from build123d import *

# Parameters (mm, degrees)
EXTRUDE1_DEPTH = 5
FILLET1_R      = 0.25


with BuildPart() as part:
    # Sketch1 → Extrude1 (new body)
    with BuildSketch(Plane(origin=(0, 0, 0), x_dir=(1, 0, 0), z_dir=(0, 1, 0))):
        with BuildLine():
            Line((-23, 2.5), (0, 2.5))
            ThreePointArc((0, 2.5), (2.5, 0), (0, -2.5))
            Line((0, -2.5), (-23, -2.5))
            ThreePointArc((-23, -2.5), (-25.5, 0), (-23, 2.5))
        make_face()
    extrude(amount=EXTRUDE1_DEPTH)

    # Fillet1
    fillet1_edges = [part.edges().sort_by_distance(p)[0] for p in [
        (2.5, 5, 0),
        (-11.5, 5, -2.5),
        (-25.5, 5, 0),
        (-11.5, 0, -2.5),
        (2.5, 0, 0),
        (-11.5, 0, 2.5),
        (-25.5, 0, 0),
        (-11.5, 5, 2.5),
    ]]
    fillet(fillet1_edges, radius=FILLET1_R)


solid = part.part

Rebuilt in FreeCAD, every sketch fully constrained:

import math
import FreeCAD as App
import Part
import Sketcher
from FreeCAD import Vector
Q = App.Units.Quantity


def edges_at(feature, points):
    """Names of the edges that pass closest to the given points."""
    edges = feature.Shape.Edges
    near = lambda p: min(range(len(edges)), key=lambda i: edges[i].distToShape(Part.Vertex(*p))[0])
    return sorted({f"Edge{near(p) + 1}" for p in points})

doc = App.newDocument("Part")
params = doc.addObject("Spreadsheet::Sheet", "Params")
for row, (alias, value) in enumerate([
    ("sketch1_radius", "2.5 mm"),
    ("sketch1_width", "23 mm"),
    ("pad1_length", "5 mm"),
    ("fillet_radius", "0.25 mm"),
], start=1):
    params.set(f"A{row}", alias)
    params.set(f"B{row}", "=" + value)
    params.setAlias(f"B{row}", alias)

body = doc.addObject("PartDesign::Body", "Body")

sketch1 = doc.addObject("Sketcher::SketchObject", "Sketch")
body.addObject(sketch1)
sketch1.AttachmentSupport = (doc.XZ_Plane, [""])
sketch1.MapMode = "FlatFace"
sketch1.addGeometry([
    Part.LineSegment(Vector(0, -2.5, 0), Vector(-23, -2.5, 0)),
    Part.ArcOfCircle(Part.Circle(Vector(-23, 0, 0), Vector(0, 0, 1), 2.5), math.radians(90), math.radians(270)),
    Part.LineSegment(Vector(-23, 2.5, 0), Vector(0, 2.5, 0)),
    Part.ArcOfCircle(Part.Circle(Vector(0, 0, 0), Vector(0, 0, 1), 2.5), math.radians(-90), math.radians(90)),
], False)
sketch1.addConstraint([
    Sketcher.Constraint("Tangent", 0, 2, 1, 2),
    Sketcher.Constraint("Tangent", 1, 1, 2, 1),
    Sketcher.Constraint("Tangent", 2, 2, 3, 2),
    Sketcher.Constraint("Tangent", 3, 1, 0, 1),
    Sketcher.Constraint("Horizontal", 0),
    Sketcher.Constraint("Horizontal", 2),
    Sketcher.Constraint("Coincident", 3, 3, -1, 1),
    Sketcher.Constraint("Radius", 1, Q("2.5 mm")),
    Sketcher.Constraint("DistanceX", 0, 2, 0, 1, Q("23 mm")),
])
sketch1.setExpression("Constraints[7]", "Params.sketch1_radius")
sketch1.setExpression("Constraints[8]", "Params.sketch1_width")
pad1 = doc.addObject("PartDesign::Pad", "Pad")
body.addObject(pad1)
pad1.Profile = sketch1
pad1.setExpression("Length", "Params.pad1_length")
pad1.Reversed = True
doc.recompute()

fillet = doc.addObject("PartDesign::Fillet", "Fillet")
body.addObject(fillet)
fillet.Base = (pad1, edges_at(pad1, [
    (2.5, 5, 0),
    (-11.5, 5, -2.5),
    (-25.5, 5, 0),
    (-11.5, 0, -2.5),
    (2.5, 0, 0),
    (-11.5, 0, 2.5),
    (-25.5, 0, 0),
    (-11.5, 5, 2.5),
]))
fillet.setExpression("Radius", "Params.fillet_radius")

doc.recompute()
